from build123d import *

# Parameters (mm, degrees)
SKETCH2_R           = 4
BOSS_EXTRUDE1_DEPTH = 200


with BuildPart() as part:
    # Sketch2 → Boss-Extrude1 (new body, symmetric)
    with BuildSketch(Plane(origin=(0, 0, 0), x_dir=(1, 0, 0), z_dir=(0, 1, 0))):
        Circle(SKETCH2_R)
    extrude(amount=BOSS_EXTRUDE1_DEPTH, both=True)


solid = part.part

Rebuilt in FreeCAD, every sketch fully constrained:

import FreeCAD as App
import Part
import Sketcher

doc = App.newDocument("Part")
body = doc.addObject("PartDesign::Body", "Body")

# Sketch on XZ plane
sketch1 = body.newObject("Sketcher::SketchObject", "Sketch")
sketch1.AttachmentSupport = (doc.getObject("XZ_Plane"), [""])
sketch1.MapMode = "FlatFace"
sketch1.addGeometry(Part.Circle(App.Vector(0, 0, 0), App.Vector(0, 0, 1), 4), False)
sketch1.addConstraint(Sketcher.Constraint("Coincident", 0, 3, -1, 1))
sketch1.addConstraint(Sketcher.Constraint("Diameter", 0, 8.0))
pad1 = body.newObject("PartDesign::Pad", "Pad")
pad1.Profile = sketch1
pad1.Length = 400
pad1.Midplane = True

doc.recompute()
